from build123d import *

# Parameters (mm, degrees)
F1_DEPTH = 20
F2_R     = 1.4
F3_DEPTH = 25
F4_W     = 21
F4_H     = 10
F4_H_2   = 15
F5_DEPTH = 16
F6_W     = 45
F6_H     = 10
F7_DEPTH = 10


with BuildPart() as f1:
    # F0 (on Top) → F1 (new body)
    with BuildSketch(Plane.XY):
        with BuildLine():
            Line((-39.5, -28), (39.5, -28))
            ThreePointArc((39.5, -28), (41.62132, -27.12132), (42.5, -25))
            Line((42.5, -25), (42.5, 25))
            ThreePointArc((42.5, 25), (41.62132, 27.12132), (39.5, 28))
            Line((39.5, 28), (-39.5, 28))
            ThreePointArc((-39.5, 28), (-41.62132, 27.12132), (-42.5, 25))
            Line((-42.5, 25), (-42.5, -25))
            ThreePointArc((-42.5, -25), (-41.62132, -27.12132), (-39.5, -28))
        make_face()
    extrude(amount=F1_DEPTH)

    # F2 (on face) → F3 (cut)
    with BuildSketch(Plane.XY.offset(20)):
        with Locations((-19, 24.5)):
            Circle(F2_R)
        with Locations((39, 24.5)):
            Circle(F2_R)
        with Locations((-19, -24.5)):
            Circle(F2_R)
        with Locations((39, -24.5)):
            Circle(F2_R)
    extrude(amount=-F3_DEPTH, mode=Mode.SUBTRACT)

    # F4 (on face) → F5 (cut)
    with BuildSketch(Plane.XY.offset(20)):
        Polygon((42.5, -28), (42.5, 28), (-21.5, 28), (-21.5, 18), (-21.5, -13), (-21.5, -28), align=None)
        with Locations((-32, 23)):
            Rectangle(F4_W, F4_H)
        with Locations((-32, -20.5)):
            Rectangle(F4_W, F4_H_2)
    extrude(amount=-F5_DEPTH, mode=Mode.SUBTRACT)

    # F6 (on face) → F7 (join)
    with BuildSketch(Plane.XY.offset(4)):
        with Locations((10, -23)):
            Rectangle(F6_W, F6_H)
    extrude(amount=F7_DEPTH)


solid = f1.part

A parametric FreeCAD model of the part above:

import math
import FreeCAD as App
import Part
import Sketcher
from FreeCAD import Vector
Q = App.Units.Quantity

doc = App.newDocument("Part")
body = doc.addObject("PartDesign::Body", "Body")

# Sketch on XY plane
sketch1 = doc.addObject("Sketcher::SketchObject", "Sketch")
body.addObject(sketch1)
sketch1.AttachmentSupport = (doc.XY_Plane, [""])
sketch1.MapMode = "FlatFace"
sketch1.addGeometry([
    Part.LineSegment(Vector(-39.5, -28, 0), Vector(39.5, -28, 0)),  # 0
    Part.ArcOfCircle(Part.Circle(Vector(39.5, -25, 0), Vector(0, 0, 1), 3), math.radians(-90), math.radians(0)),  # 1
    Part.LineSegment(Vector(42.5, -25, 0), Vector(42.5, 25, 0)),  # 2
    Part.ArcOfCircle(Part.Circle(Vector(39.5, 25, 0), Vector(0, 0, 1), 3), math.radians(0), math.radians(90)),  # 3
    Part.LineSegment(Vector(39.5, 28, 0), Vector(-39.5, 28, 0)),  # 4
    Part.ArcOfCircle(Part.Circle(Vector(-39.5, 25, 0), Vector(0, 0, 1), 3), math.radians(90), math.radians(180)),  # 5
    Part.LineSegment(Vector(-42.5, 25, 0), Vector(-42.5, -25, 0)),  # 6
    Part.ArcOfCircle(Part.Circle(Vector(-39.5, -25, 0), Vector(0, 0, 1), 3), math.radians(-180), math.radians(-90)),  # 7
], False)
sketch1.addConstraint([
    Sketcher.Constraint("Tangent", 0, 2, 1, 1),
    Sketcher.Constraint("Tangent", 1, 2, 2, 1),
    Sketcher.Constraint("Tangent", 2, 2, 3, 1),
    Sketcher.Constraint("Tangent", 3, 2, 4, 1),
    Sketcher.Constraint("Tangent", 4, 2, 5, 1),
    Sketcher.Constraint("Tangent", 5, 2, 6, 1),
    Sketcher.Constraint("Tangent", 6, 2, 7, 1),
    Sketcher.Constraint("Tangent", 7, 2, 0, 1),
    Sketcher.Constraint("Horizontal", 0),
    Sketcher.Constraint("Vertical", 2),
    Sketcher.Constraint("Horizontal", 4),
    Sketcher.Constraint("Vertical", 6),
    Sketcher.Constraint("Equal", 1, 3),
    Sketcher.Constraint("Equal", 3, 5),
    Sketcher.Constraint("Equal", 5, 7),
    Sketcher.Constraint("Symmetric", 1, 3, 5, 3, -1, 1),
    Sketcher.Constraint("Radius", 1, Q("3.000001 mm")),
    Sketcher.Constraint("DistanceX", 0, 1, 0, 2, Q("79 mm")),
    Sketcher.Constraint("DistanceY", 2, 1, 2, 2, Q("50 mm")),
])
pad1 = doc.addObject("PartDesign::Pad", "Pad")
body.addObject(pad1)
pad1.Profile = sketch1
pad1.Length = 20

# Sketch on XY plane
sketch2 = doc.addObject("Sketcher::SketchObject", "Sketch001")
body.addObject(sketch2)
sketch2.AttachmentSupport = (doc.XY_Plane, [""])
sketch2.MapMode = "FlatFace"
sketch2.AttachmentOffset = App.Placement(Vector(0, 0, 20), App.Rotation())
sketch2.addGeometry([
    Part.Circle(Vector(-19, 24.5, 0), Vector(0, 0, 1), 1.4),
    Part.Circle(Vector(39, 24.5, 0), Vector(0, 0, 1), 1.4),
    Part.Circle(Vector(-19, -24.5, 0), Vector(0, 0, 1), 1.4),
    Part.Circle(Vector(39, -24.5, 0), Vector(0, 0, 1), 1.4),
], False)
sketch2.addConstraint([
    Sketcher.Constraint("Equal", 0, 1),
    Sketcher.Constraint("Equal", 1, 2),
    Sketcher.Constraint("Equal", 2, 3),
    Sketcher.Constraint("Symmetric", 0, 3, 2, 3, -1),
    Sketcher.Constraint("Symmetric", 1, 3, 3, 3, -1),
    Sketcher.Constraint("Horizontal", 0, 3, 1, 3),
    Sketcher.Constraint("Diameter", 0, Q("2.8 mm")),
    Sketcher.Constraint("DistanceX", 0, 3, -1, 1, Q("19 mm")),
    Sketcher.Constraint("DistanceX", -1, 1, 1, 3, Q("39 mm")),
    Sketcher.Constraint("DistanceY", 2, 3, 0, 3, Q("49 mm")),
])
pocket1 = doc.addObject("PartDesign::Pocket", "Pocket")
body.addObject(pocket1)
pocket1.Profile = sketch2
pocket1.Length = 25

# Sketch on XY plane
sketch3 = doc.addObject("Sketcher::SketchObject", "Sketch002")
body.addObject(sketch3)
sketch3.AttachmentSupport = (doc.XY_Plane, [""])
sketch3.MapMode = "FlatFace"
sketch3.AttachmentOffset = App.Placement(Vector(0, 0, 20), App.Rotation())
sketch3.addGeometry([
    Part.LineSegment(Vector(42, -28, 0), Vector(42, 28, 0)),  # 0
    Part.LineSegment(Vector(42, 28, 0), Vector(-42, 28, 0)),  # 1
    Part.LineSegment(Vector(-42, 28, 0), Vector(-42, 18, 0)),  # 2
    Part.LineSegment(Vector(-42, 18, 0), Vector(-22, 18, 0)),  # 3
    Part.LineSegment(Vector(-22, 18, 0), Vector(-22, -13, 0)),  # 4
    Part.LineSegment(Vector(-22, -13, 0), Vector(-42, -13, 0)),  # 5
    Part.LineSegment(Vector(-42, -13, 0), Vector(-42, -28, 0)),  # 6
    Part.LineSegment(Vector(-42, -28, 0), Vector(42, -28, 0)),  # 7
], False)
sketch3.addConstraint([
    Sketcher.Constraint("Coincident", 0, 2, 1, 1),
    Sketcher.Constraint("Coincident", 1, 2, 2, 1),
    Sketcher.Constraint("Coincident", 2, 2, 3, 1),
    Sketcher.Constraint("Coincident", 3, 2, 4, 1),
    Sketcher.Constraint("Coincident", 4, 2, 5, 1),
    Sketcher.Constraint("Coincident", 5, 2, 6, 1),
    Sketcher.Constraint("Coincident", 6, 2, 7, 1),
    Sketcher.Constraint("Coincident", 7, 2, 0, 1),
    Sketcher.Constraint("Vertical", 0),
    Sketcher.Constraint("Horizontal", 1),
    Sketcher.Constraint("Vertical", 2),
    Sketcher.Constraint("Horizontal", 3),
    Sketcher.Constraint("Vertical", 4),
    Sketcher.Constraint("Horizontal", 5),
    Sketcher.Constraint("Vertical", 6),
    Sketcher.Constraint("Horizontal", 7),
    Sketcher.Constraint("Symmetric", 0, 2, 6, 2, -1, 1),
    Sketcher.Constraint("Vertical", 2, 2, 5, 2),
    Sketcher.Constraint("DistanceX", 1, 2, 1, 1, Q("85 mm")),
    Sketcher.Constraint("DistanceX", 3, 1, 3, 2, Q("21 mm")),
    Sketcher.Constraint("DistanceY", 0, 1, 0, 2, Q("56 mm")),
    Sketcher.Constraint("DistanceY", 2, 2, 2, 1, Q("10 mm")),
    Sketcher.Constraint("DistanceY", 4, 2, 4, 1, Q("31 mm")),
])
pocket2 = doc.addObject("PartDesign::Pocket", "Pocket001")
body.addObject(pocket2)
pocket2.Profile = sketch3
pocket2.Length = 16

# Sketch on XY plane
sketch4 = doc.addObject("Sketcher::SketchObject", "Sketch003")
body.addObject(sketch4)
sketch4.AttachmentSupport = (doc.XY_Plane, [""])
sketch4.MapMode = "FlatFace"
sketch4.AttachmentOffset = App.Placement(Vector(0, 0, 4), App.Rotation())
sketch4.addGeometry([
    Part.LineSegment(Vector(-12, -18, 0), Vector(-12, -28, 0)),
    Part.LineSegment(Vector(-12, -28, 0), Vector(32, -28, 0)),
    Part.LineSegment(Vector(32, -28, 0), Vector(32, -18, 0)),
    Part.LineSegment(Vector(32, -18, 0), Vector(-12, -18, 0)),
], False)
sketch4.addConstraint([
    Sketcher.Constraint("Coincident", 0, 2, 1, 1),
    Sketcher.Constraint("Coincident", 1, 2, 2, 1),
    Sketcher.Constraint("Coincident", 2, 2, 3, 1),
    Sketcher.Constraint("Coincident", 3, 2, 0, 1),
    Sketcher.Constraint("Vertical", 0),
    Sketcher.Constraint("Horizontal", 1),
    Sketcher.Constraint("Vertical", 2),
    Sketcher.Constraint("Horizontal", 3),
    Sketcher.Constraint("DistanceX", 1, 1, 1, 2, Q("45 mm")),
    Sketcher.Constraint("DistanceY", 0, 2, 0, 1, Q("10 mm")),
    Sketcher.Constraint("DistanceY", 0, 2, -1, 1, Q("28 mm")),
    Sketcher.Constraint("DistanceX", 0, 2, -1, 1, Q("12.5 mm")),
])
pad2 = doc.addObject("PartDesign::Pad", "Pad001")
body.addObject(pad2)
pad2.Profile = sketch4
pad2.Length = 10

doc.recompute()
